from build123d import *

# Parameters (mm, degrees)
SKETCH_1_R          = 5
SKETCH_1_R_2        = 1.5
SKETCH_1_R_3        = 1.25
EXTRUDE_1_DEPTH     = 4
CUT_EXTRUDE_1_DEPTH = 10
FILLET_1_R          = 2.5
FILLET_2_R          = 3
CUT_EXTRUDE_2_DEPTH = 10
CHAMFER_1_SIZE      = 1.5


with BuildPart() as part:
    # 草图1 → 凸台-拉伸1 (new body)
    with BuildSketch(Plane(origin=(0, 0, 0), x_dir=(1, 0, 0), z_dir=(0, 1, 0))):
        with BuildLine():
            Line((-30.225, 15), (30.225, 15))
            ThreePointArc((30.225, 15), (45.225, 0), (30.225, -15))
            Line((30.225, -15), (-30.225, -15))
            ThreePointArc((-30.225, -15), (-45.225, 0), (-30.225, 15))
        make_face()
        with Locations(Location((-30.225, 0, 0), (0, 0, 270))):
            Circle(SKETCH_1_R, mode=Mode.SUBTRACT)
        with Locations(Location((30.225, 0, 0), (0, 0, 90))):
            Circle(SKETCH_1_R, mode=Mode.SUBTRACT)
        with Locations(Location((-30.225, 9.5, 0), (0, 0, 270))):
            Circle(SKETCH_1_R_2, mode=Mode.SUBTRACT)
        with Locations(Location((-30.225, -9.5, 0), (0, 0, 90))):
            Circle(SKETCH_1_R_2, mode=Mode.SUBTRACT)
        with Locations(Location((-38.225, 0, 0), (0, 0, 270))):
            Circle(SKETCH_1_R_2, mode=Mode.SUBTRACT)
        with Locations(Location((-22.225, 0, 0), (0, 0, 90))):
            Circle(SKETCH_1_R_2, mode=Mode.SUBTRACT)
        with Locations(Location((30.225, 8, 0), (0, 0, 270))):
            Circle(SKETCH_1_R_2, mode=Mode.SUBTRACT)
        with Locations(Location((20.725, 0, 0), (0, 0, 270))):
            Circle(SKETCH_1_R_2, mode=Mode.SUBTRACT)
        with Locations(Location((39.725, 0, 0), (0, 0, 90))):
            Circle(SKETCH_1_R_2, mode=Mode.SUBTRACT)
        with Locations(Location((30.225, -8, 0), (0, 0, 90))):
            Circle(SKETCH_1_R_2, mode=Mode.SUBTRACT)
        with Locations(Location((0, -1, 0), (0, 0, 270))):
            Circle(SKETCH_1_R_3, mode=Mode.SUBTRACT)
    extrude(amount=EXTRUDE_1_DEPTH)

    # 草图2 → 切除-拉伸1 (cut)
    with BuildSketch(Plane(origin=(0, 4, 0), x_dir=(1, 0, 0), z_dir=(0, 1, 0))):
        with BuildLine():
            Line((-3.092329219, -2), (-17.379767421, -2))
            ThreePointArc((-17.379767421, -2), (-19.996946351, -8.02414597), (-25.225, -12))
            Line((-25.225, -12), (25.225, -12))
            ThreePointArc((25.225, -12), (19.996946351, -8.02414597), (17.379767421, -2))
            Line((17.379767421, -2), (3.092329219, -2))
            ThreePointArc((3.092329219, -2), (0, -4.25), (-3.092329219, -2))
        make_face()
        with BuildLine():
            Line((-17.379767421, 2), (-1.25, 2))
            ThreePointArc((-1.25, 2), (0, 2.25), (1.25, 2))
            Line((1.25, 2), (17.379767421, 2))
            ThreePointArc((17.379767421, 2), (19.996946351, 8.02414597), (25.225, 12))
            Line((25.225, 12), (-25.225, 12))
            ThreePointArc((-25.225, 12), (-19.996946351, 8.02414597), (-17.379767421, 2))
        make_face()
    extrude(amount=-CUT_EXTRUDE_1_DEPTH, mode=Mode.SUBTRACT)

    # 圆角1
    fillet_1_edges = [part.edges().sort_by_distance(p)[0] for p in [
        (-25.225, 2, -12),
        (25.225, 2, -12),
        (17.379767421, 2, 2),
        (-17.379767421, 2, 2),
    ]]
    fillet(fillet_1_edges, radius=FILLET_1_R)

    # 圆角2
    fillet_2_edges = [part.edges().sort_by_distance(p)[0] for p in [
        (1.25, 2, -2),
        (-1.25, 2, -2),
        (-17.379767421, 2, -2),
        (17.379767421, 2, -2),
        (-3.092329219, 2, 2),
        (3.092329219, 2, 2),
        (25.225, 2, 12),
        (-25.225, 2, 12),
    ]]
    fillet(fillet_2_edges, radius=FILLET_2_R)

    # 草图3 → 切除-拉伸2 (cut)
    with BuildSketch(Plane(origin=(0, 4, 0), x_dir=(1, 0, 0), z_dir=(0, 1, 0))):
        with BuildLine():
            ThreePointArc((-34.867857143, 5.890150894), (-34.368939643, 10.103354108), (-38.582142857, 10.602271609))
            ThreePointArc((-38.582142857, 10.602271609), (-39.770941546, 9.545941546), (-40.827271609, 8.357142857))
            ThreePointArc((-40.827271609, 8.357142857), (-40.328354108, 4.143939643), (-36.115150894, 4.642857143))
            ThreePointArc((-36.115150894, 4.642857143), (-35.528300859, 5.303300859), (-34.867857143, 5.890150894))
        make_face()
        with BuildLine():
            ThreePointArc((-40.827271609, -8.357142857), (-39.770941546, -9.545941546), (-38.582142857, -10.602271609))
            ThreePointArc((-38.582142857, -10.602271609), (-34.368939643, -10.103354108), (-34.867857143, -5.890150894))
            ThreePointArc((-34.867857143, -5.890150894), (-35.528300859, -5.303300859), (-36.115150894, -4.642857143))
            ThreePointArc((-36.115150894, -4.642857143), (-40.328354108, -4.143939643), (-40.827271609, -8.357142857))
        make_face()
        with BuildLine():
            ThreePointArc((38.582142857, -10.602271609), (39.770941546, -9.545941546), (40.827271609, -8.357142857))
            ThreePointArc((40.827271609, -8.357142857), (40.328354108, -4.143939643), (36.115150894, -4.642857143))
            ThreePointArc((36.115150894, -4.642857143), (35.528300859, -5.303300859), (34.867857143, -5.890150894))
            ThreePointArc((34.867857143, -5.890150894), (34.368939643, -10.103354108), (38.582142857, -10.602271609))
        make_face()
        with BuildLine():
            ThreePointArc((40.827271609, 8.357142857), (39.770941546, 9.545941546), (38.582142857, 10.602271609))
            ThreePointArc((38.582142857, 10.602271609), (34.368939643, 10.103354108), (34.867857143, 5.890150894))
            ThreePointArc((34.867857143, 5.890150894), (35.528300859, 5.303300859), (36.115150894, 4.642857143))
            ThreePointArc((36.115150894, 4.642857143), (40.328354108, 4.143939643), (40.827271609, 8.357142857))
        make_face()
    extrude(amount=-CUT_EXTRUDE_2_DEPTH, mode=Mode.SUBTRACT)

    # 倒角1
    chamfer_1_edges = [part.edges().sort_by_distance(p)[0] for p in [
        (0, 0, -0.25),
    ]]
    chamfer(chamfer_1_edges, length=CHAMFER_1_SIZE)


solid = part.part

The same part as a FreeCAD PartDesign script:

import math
import FreeCAD as App
import Part
import Sketcher


def edges_at(feature, points):
    """Names of the edges that pass closest to the given points."""
    edges = feature.Shape.Edges
    near = lambda p: min(range(len(edges)), key=lambda i: edges[i].distToShape(Part.Vertex(*p))[0])
    return sorted({f"Edge{near(p) + 1}" for p in points})

doc = App.newDocument("Part")
body = doc.addObject("PartDesign::Body", "Body")

sketch1 = doc.addObject("Sketcher::SketchObject", "Sketch")
body.addObject(sketch1)
sketch1.AttachmentSupport = (doc.XZ_Plane, [""])
sketch1.MapMode = "FlatFace"
sketch1.addGeometry(Part.LineSegment(App.Vector(30.2, -15, 0), App.Vector(-30.2, -15, 0)), False)
sketch1.addGeometry(Part.ArcOfCircle(Part.Circle(App.Vector(-30.2, 0, 0), App.Vector(0, 0, 1), 15), math.radians(90), math.radians(270)), False)
sketch1.addGeometry(Part.LineSegment(App.Vector(-30.2, 15, 0), App.Vector(30.2, 15, 0)), False)
sketch1.addGeometry(Part.ArcOfCircle(Part.Circle(App.Vector(30.2, 0, 0), App.Vector(0, 0, 1), 15), math.radians(-90), math.radians(90)), False)
sketch1.addGeometry(Part.Circle(App.Vector(30.2, 8, 0), App.Vector(0, 0, 1), 1.5), False)
sketch1.addGeometry(Part.Circle(App.Vector(-30.2, 9.5, 0), App.Vector(0, 0, 1), 1.5), False)
sketch1.addGeometry(Part.Circle(App.Vector(0, 1, 0), App.Vector(0, 0, 1), 1.2), False)
sketch1.addGeometry(Part.Circle(App.Vector(39.7, 0, 0), App.Vector(0, 0, 1), 1.5), False)
sketch1.addGeometry(Part.Circle(App.Vector(30.2, 0, 0), App.Vector(0, 0, 1), 5), False)
sketch1.addGeometry(Part.Circle(App.Vector(20.7, 0, 0), App.Vector(0, 0, 1), 1.5), False)
sketch1.addGeometry(Part.Circle(App.Vector(30.2, -8, 0), App.Vector(0, 0, 1), 1.5), False)
sketch1.addGeometry(Part.Circle(App.Vector(-22.2, 0, 0), App.Vector(0, 0, 1), 1.5), False)
sketch1.addGeometry(Part.Circle(App.Vector(-30.2, 0, 0), App.Vector(0, 0, 1), 5), False)
sketch1.addGeometry(Part.Circle(App.Vector(-38.2, 0, 0), App.Vector(0, 0, 1), 1.5), False)
sketch1.addGeometry(Part.Circle(App.Vector(-30.2, -9.5, 0), App.Vector(0, 0, 1), 1.5), False)
sketch1.addConstraint(Sketcher.Constraint("Tangent", 0, 2, 1, 2))
sketch1.addConstraint(Sketcher.Constraint("Tangent", 1, 1, 2, 1))
sketch1.addConstraint(Sketcher.Constraint("Tangent", 2, 2, 3, 2))
sketch1.addConstraint(Sketcher.Constraint("Tangent", 3, 1, 0, 1))
sketch1.addConstraint(Sketcher.Constraint("Horizontal", 0))
sketch1.addConstraint(Sketcher.Constraint("Horizontal", 2))
sketch1.addConstraint(Sketcher.Constraint("Coincident", 8, 3, 3, 3))
sketch1.addConstraint(Sketcher.Constraint("Coincident", 12, 3, 1, 3))
sketch1.addConstraint(Sketcher.Constraint("Equal", 4, 5))
sketch1.addConstraint(Sketcher.Constraint("Equal", 5, 7))
sketch1.addConstraint(Sketcher.Constraint("Equal", 7, 9))
sketch1.addConstraint(Sketcher.Constraint("Equal", 9, 10))
sketch1.addConstraint(Sketcher.Constraint("Equal", 10, 11))
sketch1.addConstraint(Sketcher.Constraint("Equal", 8, 12))
sketch1.addConstraint(Sketcher.Constraint("Equal", 11, 13))
sketch1.addConstraint(Sketcher.Constraint("Equal", 13, 14))
sketch1.addConstraint(Sketcher.Constraint("Symmetric", 1, 3, 3, 3, -1, 1))
sketch1.addConstraint(Sketcher.Constraint("Symmetric", 4, 3, 10, 3, -1))
sketch1.addConstraint(Sketcher.Constraint("Symmetric", 5, 3, 14, 3, -1))
sketch1.addConstraint(Sketcher.Constraint("PointOnObject", 6, 3, -2))
sketch1.addConstraint(Sketcher.Constraint("PointOnObject", 7, 3, -1))
sketch1.addConstraint(Sketcher.Constraint("PointOnObject", 9, 3, -1))
sketch1.addConstraint(Sketcher.Constraint("PointOnObject", 11, 3, -1))
sketch1.addConstraint(Sketcher.Constraint("PointOnObject", 13, 3, -1))
sketch1.addConstraint(Sketcher.Constraint("Vertical", 3, 3, 4, 3))
sketch1.addConstraint(Sketcher.Constraint("Vertical", 1, 3, 5, 3))
sketch1.addConstraint(Sketcher.Constraint("Diameter", 4, 3.0))
sketch1.addConstraint(Sketcher.Constraint("Diameter", 8, 10.0))
sketch1.addConstraint(Sketcher.Constraint("Radius", 1, 15.0))
sketch1.addConstraint(Sketcher.Constraint("Diameter", 6, 2.5))
sketch1.addConstraint(Sketcher.Constraint("DistanceY", -1, 1, 4, 3, 8.0))
sketch1.addConstraint(Sketcher.Constraint("DistanceY", -1, 1, 6, 3, 1.0))
sketch1.addConstraint(Sketcher.Constraint("DistanceX", 9, 3, 7, 3, 19.0))
sketch1.addConstraint(Sketcher.Constraint("DistanceX", 1, 3, 11, 3, 8.0))
sketch1.addConstraint(Sketcher.Constraint("DistanceX", 13, 3, 1, 3, 8.0))
sketch1.addConstraint(Sketcher.Constraint("DistanceY", 14, 3, 5, 3, 19.0))
sketch1.addConstraint(Sketcher.Constraint("DistanceX", 0, 2, 0, 1, 60.45))
sketch1.addConstraint(Sketcher.Constraint("DistanceX", 3, 3, 7, 3, 9.5))
pad1 = doc.addObject("PartDesign::Pad", "Pad")
body.addObject(pad1)
pad1.Profile = sketch1
pad1.Length = 4
pad1.Reversed = True

sketch2 = doc.addObject("Sketcher::SketchObject", "Sketch001")
body.addObject(sketch2)
sketch2.AttachmentSupport = (doc.XZ_Plane, [""])
sketch2.MapMode = "FlatFace"
sketch2.AttachmentOffset = App.Placement(App.Vector(0, 0, -4), App.Rotation())
sketch2.addGeometry(Part.LineSegment(App.Vector(-3.1, 2, 0), App.Vector(-17.4, 2, 0)), False)
sketch2.addGeometry(Part.ArcOfCircle(Part.Circle(App.Vector(-30.2, 0, 0), App.Vector(0, 0, 1), 13), math.radians(9), math.radians(67)), False)
sketch2.addGeometry(Part.LineSegment(App.Vector(-25.2, 12, 0), App.Vector(25.2, 12, 0)), False)
sketch2.addGeometry(Part.ArcOfCircle(Part.Circle(App.Vector(30.2, 0, 0), App.Vector(0, 0, 1), 13), math.radians(113), math.radians(171)), False)
sketch2.addGeometry(Part.LineSegment(App.Vector(17.4, 2, 0), App.Vector(3.1, 2, 0)), False)
sketch2.addGeometry(Part.ArcOfCircle(Part.Circle(App.Vector(0, 1, 0), App.Vector(0, 0, 1), 3.2), math.radians(18), math.radians(162)), False)
sketch2.addGeometry(Part.LineSegment(App.Vector(-17.4, -2, 0), App.Vector(-1.2, -2, 0)), False)
sketch2.addGeometry(Part.ArcOfCircle(Part.Circle(App.Vector(0, 1, 0), App.Vector(0, 0, 1), 3.2), math.radians(-113), math.radians(-67)), False)
sketch2.addGeometry(Part.LineSegment(App.Vector(1.2, -2, 0), App.Vector(17.4, -2, 0)), False)
sketch2.addGeometry(Part.ArcOfCircle(Part.Circle(App.Vector(30.2, 0, 0), App.Vector(0, 0, 1), 13), math.radians(-171), math.radians(-113)), False)
sketch2.addGeometry(Part.LineSegment(App.Vector(25.2, -12, 0), App.Vector(-25.2, -12, 0)), False)
sketch2.addGeometry(Part.ArcOfCircle(Part.Circle(App.Vector(-30.2, 0, 0), App.Vector(0, 0, 1), 13), math.radians(-67), math.radians(-9)), False)
sketch2.addConstraint(Sketcher.Constraint("Coincident", 0, 2, 1, 1))
sketch2.addConstraint(Sketcher.Constraint("Coincident", 1, 2, 2, 1))
sketch2.addConstraint(Sketcher.Constraint("Coincident", 2, 2, 3, 1))
sketch2.addConstraint(Sketcher.Constraint("Coincident", 3, 2, 4, 1))
sketch2.addConstraint(Sketcher.Constraint("Coincident", 4, 2, 5, 1))
sketch2.addConstraint(Sketcher.Constraint("Coincident", 5, 2, 0, 1))
sketch2.addConstraint(Sketcher.Constraint("Coincident", 6, 2, 7, 1))
sketch2.addConstraint(Sketcher.Constraint("Coincident", 7, 2, 8, 1))
sketch2.addConstraint(Sketcher.Constraint("Coincident", 8, 2, 9, 1))
sketch2.addConstraint(Sketcher.Constraint("Coincident", 9, 2, 10, 1))
sketch2.addConstraint(Sketcher.Constraint("Coincident", 10, 2, 11, 1))
sketch2.addConstraint(Sketcher.Constraint("Coincident", 11, 2, 6, 1))
sketch2.addConstraint(Sketcher.Constraint("Horizontal", 0))
sketch2.addConstraint(Sketcher.Constraint("Horizontal", 2))
sketch2.addConstraint(Sketcher.Constraint("Horizontal", 4))
sketch2.addConstraint(Sketcher.Constraint("Horizontal", 6))
sketch2.addConstraint(Sketcher.Constraint("Horizontal", 8))
sketch2.addConstraint(Sketcher.Constraint("Horizontal", 10))
sketch2.addConstraint(Sketcher.Constraint("Coincident", 7, 3, 5, 3))
sketch2.addConstraint(Sketcher.Constraint("Coincident", 9, 3, 3, 3))
sketch2.addConstraint(Sketcher.Constraint("Coincident", 11, 3, 1, 3))
sketch2.addConstraint(Sketcher.Constraint("Equal", 1, 3))
sketch2.addConstraint(Sketcher.Constraint("Equal", 5, 7))
sketch2.addConstraint(Sketcher.Constraint("Equal", 3, 9))
sketch2.addConstraint(Sketcher.Constraint("Equal", 9, 11))
sketch2.addConstraint(Sketcher.Constraint("Symmetric", 1, 3, 3, 3, -1, 1))
sketch2.addConstraint(Sketcher.Constraint("Symmetric", 0, 2, 3, 2, -2))
sketch2.addConstraint(Sketcher.Constraint("Symmetric", 6, 2, 7, 2, -2))
sketch2.addConstraint(Sketcher.Constraint("Vertical", 3, 2, 8, 2))
sketch2.addConstraint(Sketcher.Constraint("Vertical", 2, 2, 9, 2))
sketch2.addConstraint(Sketcher.Constraint("Radius", 1, 13.0))
sketch2.addConstraint(Sketcher.Constraint("Radius", 5, 3.25))
sketch2.addConstraint(Sketcher.Constraint("DistanceY", -1, 1, 5, 3, 1.0))
sketch2.addConstraint(Sketcher.Constraint("DistanceY", -1, 1, 0, 2, 2.0))
sketch2.addConstraint(Sketcher.Constraint("DistanceY", -1, 1, 1, 2, 12.0))
sketch2.addConstraint(Sketcher.Constraint("DistanceX", 2, 1, 2, 2, 50.45))
pocket1 = doc.addObject("PartDesign::Pocket", "Pocket")
body.addObject(pocket1)
pocket1.Profile = sketch2
pocket1.Length = 10
pocket1.Reversed = True
doc.recompute()

fillet = doc.addObject("PartDesign::Fillet", "Fillet")
body.addObject(fillet)
fillet.Base = (pocket1, edges_at(pocket1, [
    (-25.225, 2, -12),
    (25.225, 2, -12),
    (17.38, 2, 2),
    (-17.38, 2, 2),
]))
fillet.Radius = 2.5
doc.recompute()

fillet2 = doc.addObject("PartDesign::Fillet", "Fillet001")
body.addObject(fillet2)
fillet2.Base = (fillet, edges_at(fillet, [
    (1.25, 2, -2),
    (-1.25, 2, -2),
    (-17.38, 2, -2),
    (17.38, 2, -2),
    (-3.092, 2, 2),
    (3.092, 2, 2),
    (25.225, 2, 12),
    (-25.225, 2, 12),
]))
fillet2.Radius = 3

sketch3 = doc.addObject("Sketcher::SketchObject", "Sketch002")
body.addObject(sketch3)
sketch3.AttachmentSupport = (doc.XZ_Plane, [""])
sketch3.MapMode = "FlatFace"
sketch3.AttachmentOffset = App.Placement(App.Vector(0, 0, -4), App.Rotation())
sketch3.addGeometry(Part.ArcOfCircle(Part.Circle(App.Vector(-36.7, -8.2, 0), App.Vector(0, 0, 1), 3), math.radians(-128), math.radians(52)), False)
sketch3.addGeometry(Part.ArcOfCircle(Part.Circle(App.Vector(-30.2, 0, 0), App.Vector(0, 0, 1), 13.5), math.radians(-141.75), math.radians(-128.25)), False)
sketch3.addGeometry(Part.ArcOfCircle(Part.Circle(App.Vector(-38.5, -6.5, 0), App.Vector(0, 0, 1), 3), math.radians(38), math.radians(218)), False)
sketch3.addGeometry(Part.ArcOfCircle(Part.Circle(App.Vector(-30.2, 0, 0), App.Vector(0, 0, 1), 7.5), math.radians(-141.75), math.radians(-128.25)), False)
sketch3.addGeometry(Part.ArcOfCircle(Part.Circle(App.Vector(-30.2, 0, 0), App.Vector(0, 0, 1), 13.5), math.radians(128.25), math.radians(141.75)), False)
sketch3.addGeometry(Part.ArcOfCircle(Part.Circle(App.Vector(-36.7, 8.2, 0), App.Vector(0, 0, 1), 3), math.radians(-52), math.radians(128)), False)
sketch3.addGeometry(Part.ArcOfCircle(Part.Circle(App.Vector(-30.2, 0, 0), App.Vector(0, 0, 1), 7.5), math.radians(128.25), math.radians(141.75)), False)
sketch3.addGeometry(Part.ArcOfCircle(Part.Circle(App.Vector(-38.5, 6.5, 0), App.Vector(0, 0, 1), 3), math.radians(142), math.radians(322)), False)
sketch3.addGeometry(Part.ArcOfCircle(Part.Circle(App.Vector(30.2, 0, 0), App.Vector(0, 0, 1), 13.5), math.radians(38.25), math.radians(51.75)), False)
sketch3.addGeometry(Part.ArcOfCircle(Part.Circle(App.Vector(38.5, 6.5, 0), App.Vector(0, 0, 1), 3), math.radians(-142), math.radians(38)), False)
sketch3.addGeometry(Part.ArcOfCircle(Part.Circle(App.Vector(30.2, 0, 0), App.Vector(0, 0, 1), 7.5), math.radians(38.25), math.radians(51.75)), False)
sketch3.addGeometry(Part.ArcOfCircle(Part.Circle(App.Vector(36.7, 8.2, 0), App.Vector(0, 0, 1), 3), math.radians(52), math.radians(232)), False)
sketch3.addGeometry(Part.ArcOfCircle(Part.Circle(App.Vector(30.2, 0, 0), App.Vector(0, 0, 1), 13.5), math.radians(-51.75), math.radians(-38.25)), False)
sketch3.addGeometry(Part.ArcOfCircle(Part.Circle(App.Vector(36.7, -8.2, 0), App.Vector(0, 0, 1), 3), math.radians(128), math.radians(308)), False)
sketch3.addGeometry(Part.ArcOfCircle(Part.Circle(App.Vector(30.2, 0, 0), App.Vector(0, 0, 1), 7.5), math.radians(-51.75), math.radians(-38.25)), False)
sketch3.addGeometry(Part.ArcOfCircle(Part.Circle(App.Vector(38.5, -6.5, 0), App.Vector(0, 0, 1), 3), math.radians(-38), math.radians(142)), False)
sketch3.addConstraint(Sketcher.Constraint("Tangent", 0, 1, 1, 2))
sketch3.addConstraint(Sketcher.Constraint("Tangent", 1, 1, 2, 2))
sketch3.addConstraint(Sketcher.Constraint("Tangent", 2, 1, 3, 1))
sketch3.addConstraint(Sketcher.Constraint("Tangent", 3, 2, 0, 2))
sketch3.addConstraint(Sketcher.Constraint("Tangent", 4, 1, 5, 2))
sketch3.addConstraint(Sketcher.Constraint("Tangent", 5, 1, 6, 1))
sketch3.addConstraint(Sketcher.Constraint("Tangent", 6, 2, 7, 2))
sketch3.addConstraint(Sketcher.Constraint("Tangent", 7, 1, 4, 2))
sketch3.addConstraint(Sketcher.Constraint("Tangent", 8, 1, 9, 2))
sketch3.addConstraint(Sketcher.Constraint("Tangent", 9, 1, 10, 1))
sketch3.addConstraint(Sketcher.Constraint("Tangent", 10, 2, 11, 2))
sketch3.addConstraint(Sketcher.Constraint("Tangent", 11, 1, 8, 2))
sketch3.addConstraint(Sketcher.Constraint("Tangent", 12, 1, 13, 2))
sketch3.addConstraint(Sketcher.Constraint("Tangent", 13, 1, 14, 1))
sketch3.addConstraint(Sketcher.Constraint("Tangent", 14, 2, 15, 2))
sketch3.addConstraint(Sketcher.Constraint("Tangent", 15, 1, 12, 2))
sketch3.addConstraint(Sketcher.Constraint("Coincident", 3, 3, 1, 3))
sketch3.addConstraint(Sketcher.Constraint("Coincident", 4, 3, 1, 3))
sketch3.addConstraint(Sketcher.Constraint("Coincident", 6, 3, 1, 3))
sketch3.addConstraint(Sketcher.Constraint("Coincident", 10, 3, 8, 3))
sketch3.addConstraint(Sketcher.Constraint("Coincident", 12, 3, 8, 3))
sketch3.addConstraint(Sketcher.Constraint("Coincident", 14, 3, 8, 3))
sketch3.addConstraint(Sketcher.Constraint("Equal", 1, 4))
sketch3.addConstraint(Sketcher.Constraint("Equal", 2, 5))
sketch3.addConstraint(Sketcher.Constraint("Equal", 4, 8))
sketch3.addConstraint(Sketcher.Constraint("Equal", 7, 9))
sketch3.addConstraint(Sketcher.Constraint("Equal", 8, 12))
sketch3.addConstraint(Sketcher.Constraint("Equal", 11, 13))
sketch3.addConstraint(Sketcher.Constraint("Symmetric", 1, 3, 8, 3, -1, 1))
sketch3.addConstraint(Sketcher.Constraint("Symmetric", 7, 3, 9, 3, -2))
sketch3.addConstraint(Sketcher.Constraint("Horizontal", 5, 3, 11, 3))
sketch3.addConstraint(Sketcher.Constraint("Horizontal", 0, 3, 13, 3))
sketch3.addConstraint(Sketcher.Constraint("Horizontal", 2, 3, 15, 3))
sketch3.addConstraint(Sketcher.Constraint("Vertical", 0, 3, 5, 3))
sketch3.addConstraint(Sketcher.Constraint("Vertical", 2, 3, 7, 3))
sketch3.addConstraint(Sketcher.Constraint("Radius", 0, 3.0))
sketch3.addConstraint(Sketcher.Constraint("Radius", 1, 13.5))
sketch3.addConstraint(Sketcher.Constraint("DistanceY", 2, 3, -1, 1, 6.5))
sketch3.addConstraint(Sketcher.Constraint("DistanceX", 0, 3, 1, 3, 6.5))
sketch3.addConstraint(Sketcher.Constraint("DistanceX", 1, 3, 8, 3, 60.45))
pocket2 = doc.addObject("PartDesign::Pocket", "Pocket001")
body.addObject(pocket2)
pocket2.Profile = sketch3
pocket2.Length = 10
pocket2.Reversed = True
doc.recompute()

chamfer = doc.addObject("PartDesign::Chamfer", "Chamfer")
body.addObject(chamfer)
chamfer.Base = (pocket2, edges_at(pocket2, [(0, 0, -0.25)]))
chamfer.Size = 1.5

doc.recompute()
